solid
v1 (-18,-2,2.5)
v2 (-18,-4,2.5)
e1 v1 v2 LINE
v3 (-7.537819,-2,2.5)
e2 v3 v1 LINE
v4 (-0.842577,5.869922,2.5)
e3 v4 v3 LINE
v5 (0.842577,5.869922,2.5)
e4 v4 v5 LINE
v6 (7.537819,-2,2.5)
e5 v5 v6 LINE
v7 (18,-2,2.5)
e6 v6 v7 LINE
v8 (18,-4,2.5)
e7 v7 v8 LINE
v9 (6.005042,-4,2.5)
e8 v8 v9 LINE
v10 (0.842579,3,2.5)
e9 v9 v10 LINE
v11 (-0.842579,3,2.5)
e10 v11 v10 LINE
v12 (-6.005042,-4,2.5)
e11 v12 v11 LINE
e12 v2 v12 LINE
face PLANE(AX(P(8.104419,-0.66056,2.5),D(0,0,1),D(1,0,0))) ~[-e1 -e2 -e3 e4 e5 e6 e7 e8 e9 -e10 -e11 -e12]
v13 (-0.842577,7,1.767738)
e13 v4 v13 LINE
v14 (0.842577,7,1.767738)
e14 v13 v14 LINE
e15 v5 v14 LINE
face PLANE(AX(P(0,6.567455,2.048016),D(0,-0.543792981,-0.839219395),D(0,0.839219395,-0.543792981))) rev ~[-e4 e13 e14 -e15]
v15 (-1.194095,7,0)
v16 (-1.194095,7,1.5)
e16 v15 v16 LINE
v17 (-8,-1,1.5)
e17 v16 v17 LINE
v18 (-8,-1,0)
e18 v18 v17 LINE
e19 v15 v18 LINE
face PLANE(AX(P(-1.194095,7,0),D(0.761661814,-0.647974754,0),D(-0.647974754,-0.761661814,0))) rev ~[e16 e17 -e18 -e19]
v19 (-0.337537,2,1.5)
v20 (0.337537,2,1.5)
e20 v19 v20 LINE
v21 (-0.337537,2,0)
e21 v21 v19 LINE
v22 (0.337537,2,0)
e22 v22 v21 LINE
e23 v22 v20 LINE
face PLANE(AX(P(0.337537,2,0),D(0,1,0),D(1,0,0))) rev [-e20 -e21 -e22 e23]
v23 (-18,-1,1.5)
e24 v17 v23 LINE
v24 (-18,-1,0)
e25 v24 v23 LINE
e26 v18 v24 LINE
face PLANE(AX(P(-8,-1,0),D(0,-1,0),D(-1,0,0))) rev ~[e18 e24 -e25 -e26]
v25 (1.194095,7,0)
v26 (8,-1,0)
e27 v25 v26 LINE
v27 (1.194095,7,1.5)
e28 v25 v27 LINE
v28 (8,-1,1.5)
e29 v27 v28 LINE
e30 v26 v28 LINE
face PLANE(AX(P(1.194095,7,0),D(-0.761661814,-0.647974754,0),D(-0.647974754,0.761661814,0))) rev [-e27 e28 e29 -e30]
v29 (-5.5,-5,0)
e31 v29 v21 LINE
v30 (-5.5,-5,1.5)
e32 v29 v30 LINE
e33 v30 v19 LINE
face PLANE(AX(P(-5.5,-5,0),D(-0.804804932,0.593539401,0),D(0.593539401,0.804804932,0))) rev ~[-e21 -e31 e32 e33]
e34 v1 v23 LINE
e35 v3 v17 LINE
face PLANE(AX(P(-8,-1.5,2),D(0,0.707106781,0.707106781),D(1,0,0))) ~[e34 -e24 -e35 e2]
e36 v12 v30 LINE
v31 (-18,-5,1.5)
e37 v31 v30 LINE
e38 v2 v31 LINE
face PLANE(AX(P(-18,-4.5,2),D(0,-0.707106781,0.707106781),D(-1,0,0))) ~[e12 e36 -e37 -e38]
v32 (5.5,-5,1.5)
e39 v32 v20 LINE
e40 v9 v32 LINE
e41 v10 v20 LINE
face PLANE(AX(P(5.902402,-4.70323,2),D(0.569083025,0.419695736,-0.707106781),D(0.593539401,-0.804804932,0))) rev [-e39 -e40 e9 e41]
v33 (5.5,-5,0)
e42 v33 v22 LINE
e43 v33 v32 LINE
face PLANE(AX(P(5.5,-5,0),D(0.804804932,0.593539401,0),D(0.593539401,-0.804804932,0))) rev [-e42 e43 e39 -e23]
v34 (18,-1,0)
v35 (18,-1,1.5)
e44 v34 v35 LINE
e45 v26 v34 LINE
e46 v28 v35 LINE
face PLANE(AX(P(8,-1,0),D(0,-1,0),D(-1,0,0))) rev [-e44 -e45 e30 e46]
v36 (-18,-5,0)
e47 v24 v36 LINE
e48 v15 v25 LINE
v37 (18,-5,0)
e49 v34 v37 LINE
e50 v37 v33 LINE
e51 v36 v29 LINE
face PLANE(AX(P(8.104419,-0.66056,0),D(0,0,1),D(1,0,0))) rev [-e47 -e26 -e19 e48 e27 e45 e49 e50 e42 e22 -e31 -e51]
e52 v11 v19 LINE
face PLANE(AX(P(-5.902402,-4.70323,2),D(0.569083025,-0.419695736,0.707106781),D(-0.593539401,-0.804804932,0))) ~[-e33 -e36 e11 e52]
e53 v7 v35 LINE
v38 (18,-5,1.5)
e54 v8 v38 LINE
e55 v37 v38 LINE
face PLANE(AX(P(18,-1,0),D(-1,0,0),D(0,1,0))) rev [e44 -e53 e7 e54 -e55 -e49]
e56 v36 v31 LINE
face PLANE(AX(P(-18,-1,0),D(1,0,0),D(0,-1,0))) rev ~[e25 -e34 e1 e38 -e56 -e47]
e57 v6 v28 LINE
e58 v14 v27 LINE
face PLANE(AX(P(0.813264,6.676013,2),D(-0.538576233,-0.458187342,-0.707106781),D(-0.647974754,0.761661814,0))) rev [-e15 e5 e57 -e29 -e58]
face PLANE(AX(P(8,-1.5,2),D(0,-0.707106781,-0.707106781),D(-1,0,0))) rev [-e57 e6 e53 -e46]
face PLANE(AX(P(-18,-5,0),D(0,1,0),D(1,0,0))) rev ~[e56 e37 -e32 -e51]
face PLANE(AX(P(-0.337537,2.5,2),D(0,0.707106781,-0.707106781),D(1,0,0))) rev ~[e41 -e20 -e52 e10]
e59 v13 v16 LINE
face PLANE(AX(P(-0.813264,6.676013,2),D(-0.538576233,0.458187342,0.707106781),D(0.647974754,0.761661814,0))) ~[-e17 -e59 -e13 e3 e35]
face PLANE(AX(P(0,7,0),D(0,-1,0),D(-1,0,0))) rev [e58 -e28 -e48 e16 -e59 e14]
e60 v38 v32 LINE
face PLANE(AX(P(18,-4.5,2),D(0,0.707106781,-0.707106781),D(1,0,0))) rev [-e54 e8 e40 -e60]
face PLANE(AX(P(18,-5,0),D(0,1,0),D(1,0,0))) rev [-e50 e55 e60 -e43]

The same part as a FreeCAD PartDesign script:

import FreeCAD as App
import Part
import Sketcher

V = App.Vector


def edges_at(feature, points):
    """Names of the edges that pass closest to the given points."""
    edges = feature.Shape.Edges
    near = lambda p: min(range(len(edges)), key=lambda i: edges[i].distToShape(Part.Vertex(*p))[0])
    return sorted({f"Edge{near(p) + 1}" for p in points})

doc = App.newDocument("Part")
body = doc.addObject("PartDesign::Body", "Body")

# Sketch on XY plane
sketch1 = body.newObject("Sketcher::SketchObject", "Sketch")
sketch1.AttachmentSupport = (doc.getObject("XY_Plane"), [""])
sketch1.MapMode = "FlatFace"
sketch1.addGeometry([
    Part.LineSegment(V(-8, -1, 0), V(-18, -1, 0)),  # 0
    Part.LineSegment(V(-18, -1, 0), V(-18, -5, 0)),  # 1
    Part.LineSegment(V(-18, -5, 0), V(-5.5, -5, 0)),  # 2
    Part.LineSegment(V(-5.5, -5, 0), V(-0.34, 2, 0)),  # 3
    Part.LineSegment(V(-0.34, 2, 0), V(0, 2, 0)),  # 4
    Part.LineSegment(V(0, 2, 0), V(0, 7, 0)),  # 5
    Part.LineSegment(V(0, 7, 0), V(-1.19, 7, 0)),  # 6
    Part.LineSegment(V(-1.19, 7, 0), V(-8, -1, 0)),  # 7
], False)
sketch1.addConstraint([
    Sketcher.Constraint("Coincident", 0, 2, 1, 1),
    Sketcher.Constraint("Coincident", 1, 2, 2, 1),
    Sketcher.Constraint("Coincident", 2, 2, 3, 1),
    Sketcher.Constraint("Coincident", 3, 2, 4, 1),
    Sketcher.Constraint("Coincident", 4, 2, 5, 1),
    Sketcher.Constraint("Coincident", 5, 2, 6, 1),
    Sketcher.Constraint("Coincident", 6, 2, 7, 1),
    Sketcher.Constraint("Coincident", 7, 2, 0, 1),
    Sketcher.Constraint("Horizontal", 0),
    Sketcher.Constraint("Vertical", 1),
    Sketcher.Constraint("Horizontal", 2),
    Sketcher.Constraint("Horizontal", 4),
    Sketcher.Constraint("Vertical", 5),
    Sketcher.Constraint("Horizontal", 6),
    Sketcher.Constraint("PointOnObject", 4, 2, -2),
    Sketcher.Constraint("DistanceX", 0, 2, 0, 1, 10.0),
    Sketcher.Constraint("DistanceY", 1, 2, 1, 1, 4.0),
    Sketcher.Constraint("DistanceY", 5, 1, 5, 2, 5.0),
    Sketcher.Constraint("DistanceX", 2, 1, 2, 2, 12.5),
    Sketcher.Constraint("DistanceX", 0, 2, -1, 1, 18.0),
    Sketcher.Constraint("DistanceY", 0, 2, -1, 1, 1.0),
    Sketcher.Constraint("DistanceY", -1, 1, 3, 2, 2.0),
    Sketcher.Constraint("Distance", 3, 8.69776),
    Sketcher.Constraint("Distance", 7, 10.503349),
])
pad1 = body.newObject("PartDesign::Pad", "Pad")
pad1.Profile = sketch1
pad1.Length = 2.5
body2 = doc.addObject("PartDesign::Body", "Body001")
doc.recompute()

body2.BaseFeature = body
doc.recompute()

mirroring = doc.addObject("Part::Mirroring", "Mirroring")
mirroring.Source = body
mirroring.Base = V(0, 0, 0)
mirroring.Normal = V(1, 0, 0)
body3 = doc.addObject("PartDesign::Body", "Body002")
body3.BaseFeature = mirroring
boolean = body2.newObject("PartDesign::Boolean", "Boolean")
boolean.Type = "Fuse"
boolean.addObjects([body3])
doc.recompute()

chamfer = body2.newObject("PartDesign::Chamfer", "Chamfer")
chamfer.Base = (boolean, edges_at(boolean, [
    (-11.75, -5, 2.5),
    (-2.919, -1.5, 2.5),
    (2.919, -1.5, 2.5),
    (11.75, -5, 2.5),
    (0, 2, 2.5),
]))
chamfer.Size = 1
doc.recompute()

chamfer2 = body2.newObject("PartDesign::Chamfer", "Chamfer001")
chamfer2.Base = (chamfer, edges_at(chamfer, [(-13, -1, 2.5), (-4.597, 3, 2.5)]))
chamfer2.Size = 1
doc.recompute()

chamfer3 = body2.newObject("PartDesign::Chamfer", "Chamfer002")
chamfer3.Base = (chamfer2, edges_at(chamfer2, [(4.597, 3, 2.5), (13, -1, 2.5)]))
chamfer3.Size = 1
doc.recompute()

chamfer4 = body2.newObject("PartDesign::Chamfer", "Chamfer003")
chamfer4.Base = (chamfer3, edges_at(chamfer3, [(0, 6.93, 2.455)]))
chamfer4.Size = 1
mirroring.Visibility = False

doc.recompute()
